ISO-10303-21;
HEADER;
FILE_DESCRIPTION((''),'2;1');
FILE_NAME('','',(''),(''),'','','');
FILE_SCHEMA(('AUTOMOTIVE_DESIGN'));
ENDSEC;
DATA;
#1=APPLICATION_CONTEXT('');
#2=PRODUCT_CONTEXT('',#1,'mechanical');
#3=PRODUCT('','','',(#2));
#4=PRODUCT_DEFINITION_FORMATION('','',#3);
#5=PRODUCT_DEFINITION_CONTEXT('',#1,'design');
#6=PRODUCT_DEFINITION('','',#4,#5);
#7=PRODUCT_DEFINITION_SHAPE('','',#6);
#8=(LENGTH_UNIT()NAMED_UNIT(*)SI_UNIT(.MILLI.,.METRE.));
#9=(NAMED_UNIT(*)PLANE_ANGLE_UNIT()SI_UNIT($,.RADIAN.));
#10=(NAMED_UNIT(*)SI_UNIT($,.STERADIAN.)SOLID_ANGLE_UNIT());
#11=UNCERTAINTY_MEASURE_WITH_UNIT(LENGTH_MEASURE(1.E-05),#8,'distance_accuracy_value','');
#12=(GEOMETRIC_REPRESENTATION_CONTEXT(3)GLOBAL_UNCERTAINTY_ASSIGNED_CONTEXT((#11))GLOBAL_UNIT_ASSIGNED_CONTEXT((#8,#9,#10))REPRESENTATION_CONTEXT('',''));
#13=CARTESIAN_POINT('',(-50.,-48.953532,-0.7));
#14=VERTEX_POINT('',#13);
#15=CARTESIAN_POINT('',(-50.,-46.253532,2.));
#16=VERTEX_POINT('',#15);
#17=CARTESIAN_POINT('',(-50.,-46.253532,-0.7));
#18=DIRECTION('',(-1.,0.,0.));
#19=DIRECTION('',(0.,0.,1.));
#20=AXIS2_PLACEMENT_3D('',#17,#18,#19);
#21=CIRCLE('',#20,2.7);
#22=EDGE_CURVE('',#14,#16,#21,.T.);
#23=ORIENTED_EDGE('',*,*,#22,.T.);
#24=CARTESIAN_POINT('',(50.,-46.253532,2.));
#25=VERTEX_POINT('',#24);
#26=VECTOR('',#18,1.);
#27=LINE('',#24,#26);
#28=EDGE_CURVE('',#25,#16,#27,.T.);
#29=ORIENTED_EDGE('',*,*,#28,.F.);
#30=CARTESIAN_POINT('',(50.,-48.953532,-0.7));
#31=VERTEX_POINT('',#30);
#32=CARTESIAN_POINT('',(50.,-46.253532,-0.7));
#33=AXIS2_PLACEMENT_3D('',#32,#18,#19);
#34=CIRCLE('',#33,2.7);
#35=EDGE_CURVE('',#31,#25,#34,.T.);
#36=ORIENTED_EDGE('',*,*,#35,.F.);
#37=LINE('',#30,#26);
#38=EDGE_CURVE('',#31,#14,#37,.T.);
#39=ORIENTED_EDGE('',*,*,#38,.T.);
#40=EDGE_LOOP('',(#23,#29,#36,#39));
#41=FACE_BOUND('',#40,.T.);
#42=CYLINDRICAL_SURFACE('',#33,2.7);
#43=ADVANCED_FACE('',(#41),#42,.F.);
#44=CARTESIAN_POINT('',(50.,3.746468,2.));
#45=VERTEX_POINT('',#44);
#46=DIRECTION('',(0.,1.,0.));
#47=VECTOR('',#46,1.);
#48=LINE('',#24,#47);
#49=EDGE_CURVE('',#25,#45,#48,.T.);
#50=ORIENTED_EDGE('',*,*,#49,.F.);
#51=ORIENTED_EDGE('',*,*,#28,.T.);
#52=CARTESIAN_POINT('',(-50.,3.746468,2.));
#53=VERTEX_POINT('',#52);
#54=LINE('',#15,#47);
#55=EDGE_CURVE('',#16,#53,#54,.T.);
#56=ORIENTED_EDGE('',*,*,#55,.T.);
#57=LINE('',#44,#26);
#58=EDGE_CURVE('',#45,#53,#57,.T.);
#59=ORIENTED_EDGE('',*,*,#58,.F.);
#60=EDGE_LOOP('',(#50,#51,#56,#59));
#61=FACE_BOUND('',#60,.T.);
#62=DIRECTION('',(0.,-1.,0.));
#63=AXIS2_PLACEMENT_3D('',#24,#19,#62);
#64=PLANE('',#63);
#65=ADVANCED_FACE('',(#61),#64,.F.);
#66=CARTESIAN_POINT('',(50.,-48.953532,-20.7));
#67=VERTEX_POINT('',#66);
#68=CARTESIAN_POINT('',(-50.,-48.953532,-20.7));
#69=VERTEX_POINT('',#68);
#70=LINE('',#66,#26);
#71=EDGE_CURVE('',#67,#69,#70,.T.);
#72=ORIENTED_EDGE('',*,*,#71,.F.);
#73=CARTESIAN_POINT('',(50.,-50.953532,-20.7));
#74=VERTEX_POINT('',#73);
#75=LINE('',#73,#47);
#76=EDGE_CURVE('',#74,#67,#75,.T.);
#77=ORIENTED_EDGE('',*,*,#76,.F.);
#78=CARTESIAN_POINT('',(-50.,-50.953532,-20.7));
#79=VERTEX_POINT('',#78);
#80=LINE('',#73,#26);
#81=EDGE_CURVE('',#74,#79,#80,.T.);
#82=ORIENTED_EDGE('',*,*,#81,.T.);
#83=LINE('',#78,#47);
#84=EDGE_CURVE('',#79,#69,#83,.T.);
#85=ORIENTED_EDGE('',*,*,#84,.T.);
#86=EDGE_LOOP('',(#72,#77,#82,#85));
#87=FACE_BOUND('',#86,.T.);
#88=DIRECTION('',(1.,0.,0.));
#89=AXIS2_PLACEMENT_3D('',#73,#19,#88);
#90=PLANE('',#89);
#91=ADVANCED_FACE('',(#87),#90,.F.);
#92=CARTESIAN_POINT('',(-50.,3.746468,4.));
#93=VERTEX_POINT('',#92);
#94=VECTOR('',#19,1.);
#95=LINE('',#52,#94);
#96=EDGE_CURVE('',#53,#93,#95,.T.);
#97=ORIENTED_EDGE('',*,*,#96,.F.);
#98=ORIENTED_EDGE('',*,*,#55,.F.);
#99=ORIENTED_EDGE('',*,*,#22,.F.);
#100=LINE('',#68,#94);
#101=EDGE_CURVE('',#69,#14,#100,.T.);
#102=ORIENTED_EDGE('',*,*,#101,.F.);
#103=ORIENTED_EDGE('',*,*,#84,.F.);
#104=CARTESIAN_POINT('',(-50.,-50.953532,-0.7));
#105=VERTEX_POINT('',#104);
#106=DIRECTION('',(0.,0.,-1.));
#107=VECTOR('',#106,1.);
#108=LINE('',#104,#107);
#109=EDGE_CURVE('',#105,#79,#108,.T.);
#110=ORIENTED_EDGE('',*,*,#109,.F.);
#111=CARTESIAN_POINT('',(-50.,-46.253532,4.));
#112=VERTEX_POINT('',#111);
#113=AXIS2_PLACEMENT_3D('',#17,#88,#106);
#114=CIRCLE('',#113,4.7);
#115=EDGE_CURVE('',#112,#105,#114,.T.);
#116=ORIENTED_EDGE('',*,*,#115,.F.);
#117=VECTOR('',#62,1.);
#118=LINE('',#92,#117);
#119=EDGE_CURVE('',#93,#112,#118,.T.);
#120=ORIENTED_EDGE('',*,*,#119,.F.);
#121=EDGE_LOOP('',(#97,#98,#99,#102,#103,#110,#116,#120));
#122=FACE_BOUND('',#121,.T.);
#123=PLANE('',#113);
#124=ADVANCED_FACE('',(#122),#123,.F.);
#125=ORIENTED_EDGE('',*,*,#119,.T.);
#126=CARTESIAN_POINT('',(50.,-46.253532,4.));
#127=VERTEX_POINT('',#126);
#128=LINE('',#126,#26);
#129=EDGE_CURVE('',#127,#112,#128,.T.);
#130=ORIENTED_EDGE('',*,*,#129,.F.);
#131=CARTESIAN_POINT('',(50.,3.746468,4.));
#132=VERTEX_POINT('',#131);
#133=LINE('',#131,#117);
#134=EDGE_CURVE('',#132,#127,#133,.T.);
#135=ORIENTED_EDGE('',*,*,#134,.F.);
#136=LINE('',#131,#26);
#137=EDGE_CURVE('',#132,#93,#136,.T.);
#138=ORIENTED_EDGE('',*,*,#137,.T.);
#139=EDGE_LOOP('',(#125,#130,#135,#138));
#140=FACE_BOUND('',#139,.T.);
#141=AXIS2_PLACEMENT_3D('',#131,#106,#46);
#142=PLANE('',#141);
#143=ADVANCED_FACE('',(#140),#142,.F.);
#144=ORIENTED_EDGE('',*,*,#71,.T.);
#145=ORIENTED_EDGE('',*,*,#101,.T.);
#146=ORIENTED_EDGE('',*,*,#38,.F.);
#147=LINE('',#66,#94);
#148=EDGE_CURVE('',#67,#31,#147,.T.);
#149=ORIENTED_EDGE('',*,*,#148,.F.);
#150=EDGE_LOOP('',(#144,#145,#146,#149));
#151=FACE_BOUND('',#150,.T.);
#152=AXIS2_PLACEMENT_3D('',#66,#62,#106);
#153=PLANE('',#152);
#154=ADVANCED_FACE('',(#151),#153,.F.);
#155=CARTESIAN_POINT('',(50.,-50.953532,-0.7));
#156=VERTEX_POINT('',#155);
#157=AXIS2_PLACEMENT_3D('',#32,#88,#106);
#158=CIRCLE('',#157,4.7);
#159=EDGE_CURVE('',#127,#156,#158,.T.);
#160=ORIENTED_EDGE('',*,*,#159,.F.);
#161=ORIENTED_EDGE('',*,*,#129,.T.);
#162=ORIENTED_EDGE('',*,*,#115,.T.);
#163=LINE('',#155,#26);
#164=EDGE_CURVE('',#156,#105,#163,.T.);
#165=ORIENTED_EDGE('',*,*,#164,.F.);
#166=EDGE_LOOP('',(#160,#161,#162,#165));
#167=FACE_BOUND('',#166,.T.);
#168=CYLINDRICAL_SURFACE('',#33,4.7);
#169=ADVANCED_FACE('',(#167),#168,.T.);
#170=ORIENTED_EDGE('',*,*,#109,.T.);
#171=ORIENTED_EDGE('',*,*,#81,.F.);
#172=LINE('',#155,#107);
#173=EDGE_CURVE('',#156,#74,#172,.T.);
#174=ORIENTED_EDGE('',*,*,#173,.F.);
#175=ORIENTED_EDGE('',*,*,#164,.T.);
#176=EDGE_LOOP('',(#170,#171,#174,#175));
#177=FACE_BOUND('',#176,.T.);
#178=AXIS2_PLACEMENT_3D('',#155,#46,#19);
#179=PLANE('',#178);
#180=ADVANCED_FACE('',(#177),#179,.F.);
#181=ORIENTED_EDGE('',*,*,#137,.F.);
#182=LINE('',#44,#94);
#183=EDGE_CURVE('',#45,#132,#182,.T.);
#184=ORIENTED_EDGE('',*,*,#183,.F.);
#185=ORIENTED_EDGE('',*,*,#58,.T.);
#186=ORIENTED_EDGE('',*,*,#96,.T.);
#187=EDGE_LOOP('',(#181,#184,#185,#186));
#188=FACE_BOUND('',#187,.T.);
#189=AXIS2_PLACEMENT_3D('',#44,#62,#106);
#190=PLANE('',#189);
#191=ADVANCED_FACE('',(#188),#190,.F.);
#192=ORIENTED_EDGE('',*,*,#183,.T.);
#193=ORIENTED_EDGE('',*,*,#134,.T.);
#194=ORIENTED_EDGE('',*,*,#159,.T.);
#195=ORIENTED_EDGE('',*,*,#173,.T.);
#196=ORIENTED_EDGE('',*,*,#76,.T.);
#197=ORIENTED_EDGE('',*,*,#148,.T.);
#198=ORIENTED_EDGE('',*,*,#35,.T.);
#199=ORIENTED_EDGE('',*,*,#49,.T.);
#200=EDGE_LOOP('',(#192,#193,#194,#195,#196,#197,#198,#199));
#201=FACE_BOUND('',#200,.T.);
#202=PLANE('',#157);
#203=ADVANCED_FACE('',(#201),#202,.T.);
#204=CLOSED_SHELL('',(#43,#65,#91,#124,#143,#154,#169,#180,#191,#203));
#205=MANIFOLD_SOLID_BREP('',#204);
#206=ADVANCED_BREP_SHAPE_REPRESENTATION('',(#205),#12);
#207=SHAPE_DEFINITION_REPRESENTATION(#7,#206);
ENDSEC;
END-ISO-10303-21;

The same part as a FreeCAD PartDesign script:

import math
import FreeCAD as App
import Part
import Sketcher

doc = App.newDocument("Part")
body = doc.addObject("PartDesign::Body", "Body")

# Sketch on YZ plane
sketch1 = body.newObject("Sketcher::SketchObject", "Sketch")
sketch1.AttachmentSupport = (doc.getObject("YZ_Plane"), [""])
sketch1.MapMode = "FlatFace"
sketch1.addGeometry(Part.LineSegment(App.Vector(3.7, 4, 0), App.Vector(-46.3, 4, 0)), False)
sketch1.addGeometry(Part.ArcOfCircle(Part.Circle(App.Vector(-46.3, -0.7, 0), App.Vector(0, 0, 1), 4.7), math.radians(90), math.radians(180)), False)
sketch1.addGeometry(Part.LineSegment(App.Vector(-51, -0.7, 0), App.Vector(-51, -20.7, 0)), False)
sketch1.addGeometry(Part.LineSegment(App.Vector(-51, -20.7, 0), App.Vector(-49, -20.7, 0)), False)
sketch1.addGeometry(Part.LineSegment(App.Vector(-49, -20.7, 0), App.Vector(-49, -0.7, 0)), False)
sketch1.addGeometry(Part.ArcOfCircle(Part.Circle(App.Vector(-46.3, -0.7, 0), App.Vector(0, 0, 1), 2.7), math.radians(90), math.radians(180)), False)
sketch1.addGeometry(Part.LineSegment(App.Vector(-46.3, 2, 0), App.Vector(3.7, 2, 0)), False)
sketch1.addGeometry(Part.LineSegment(App.Vector(3.7, 2, 0), App.Vector(3.7, 4, 0)), False)
sketch1.addConstraint(Sketcher.Constraint("Tangent", 0, 2, 1, 1))
sketch1.addConstraint(Sketcher.Constraint("Tangent", 1, 2, 2, 1))
sketch1.addConstraint(Sketcher.Constraint("Coincident", 2, 2, 3, 1))
sketch1.addConstraint(Sketcher.Constraint("Coincident", 3, 2, 4, 1))
sketch1.addConstraint(Sketcher.Constraint("Tangent", 4, 2, 5, 2))
sketch1.addConstraint(Sketcher.Constraint("Tangent", 5, 1, 6, 1))
sketch1.addConstraint(Sketcher.Constraint("Coincident", 6, 2, 7, 1))
sketch1.addConstraint(Sketcher.Constraint("Coincident", 7, 2, 0, 1))
sketch1.addConstraint(Sketcher.Constraint("Horizontal", 0))
sketch1.addConstraint(Sketcher.Constraint("Vertical", 2))
sketch1.addConstraint(Sketcher.Constraint("Horizontal", 3))
sketch1.addConstraint(Sketcher.Constraint("Vertical", 4))
sketch1.addConstraint(Sketcher.Constraint("Horizontal", 6))
sketch1.addConstraint(Sketcher.Constraint("Vertical", 7))
sketch1.addConstraint(Sketcher.Constraint("Coincident", 5, 3, 1, 3))
sketch1.addConstraint(Sketcher.Constraint("Radius", 1, 4.7))
sketch1.addConstraint(Sketcher.Constraint("Radius", 5, 2.7))
sketch1.addConstraint(Sketcher.Constraint("DistanceX", 0, 2, 0, 1, 50.0))
sketch1.addConstraint(Sketcher.Constraint("DistanceY", 2, 2, 2, 1, 20.0))
sketch1.addConstraint(Sketcher.Constraint("DistanceY", -1, 1, 0, 2, 4.0))
sketch1.addConstraint(Sketcher.Constraint("DistanceX", 1, 3, -1, 1, 46.253532))
pad1 = body.newObject("PartDesign::Pad", "Pad")
pad1.Profile = sketch1
pad1.Length = 100
pad1.Midplane = True

doc.recompute()
